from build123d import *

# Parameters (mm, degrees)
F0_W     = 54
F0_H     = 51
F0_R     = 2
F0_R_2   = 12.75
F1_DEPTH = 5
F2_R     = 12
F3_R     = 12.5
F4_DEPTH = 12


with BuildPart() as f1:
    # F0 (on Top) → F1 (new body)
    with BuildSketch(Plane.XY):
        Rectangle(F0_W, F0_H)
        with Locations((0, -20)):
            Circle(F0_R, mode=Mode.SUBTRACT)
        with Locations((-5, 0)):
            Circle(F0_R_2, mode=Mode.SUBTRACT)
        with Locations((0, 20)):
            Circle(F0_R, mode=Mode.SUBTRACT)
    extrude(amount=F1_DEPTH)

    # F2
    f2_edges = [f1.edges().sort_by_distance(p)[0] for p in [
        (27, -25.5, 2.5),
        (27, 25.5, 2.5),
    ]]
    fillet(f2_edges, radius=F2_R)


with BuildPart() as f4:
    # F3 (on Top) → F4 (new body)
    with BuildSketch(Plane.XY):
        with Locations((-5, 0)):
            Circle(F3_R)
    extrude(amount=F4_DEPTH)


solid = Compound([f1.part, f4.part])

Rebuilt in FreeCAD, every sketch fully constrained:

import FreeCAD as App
import Part
import Sketcher
from FreeCAD import Vector


def edges_at(feature, points):
    """Names of the edges that pass closest to the given points."""
    edges = feature.Shape.Edges
    near = lambda p: min(range(len(edges)), key=lambda i: edges[i].distToShape(Part.Vertex(*p))[0])
    return sorted({f"Edge{near(p) + 1}" for p in points})

doc = App.newDocument("Part")
body = doc.addObject("PartDesign::Body", "Body")

# Sketch on XY plane
sketch1 = doc.addObject("Sketcher::SketchObject", "Sketch")
body.addObject(sketch1)
sketch1.AttachmentSupport = (doc.XY_Plane, [""])
sketch1.MapMode = "FlatFace"
sketch1.addGeometry([
    Part.LineSegment(Vector(-27, 25.5, 0), Vector(-27, -25.5, 0)),  # 0
    Part.LineSegment(Vector(-27, -25.5, 0), Vector(27, -25.5, 0)),  # 1
    Part.LineSegment(Vector(27, -25.5, 0), Vector(27, 25.5, 0)),  # 2
    Part.LineSegment(Vector(27, 25.5, 0), Vector(-27, 25.5, 0)),  # 3
    Part.Circle(Vector(0, -20, 0), Vector(0, 0, 1), 2),  # 4
    Part.Circle(Vector(-5, 0, 0), Vector(0, 0, 1), 12.8),  # 5
    Part.Circle(Vector(0, 20, 0), Vector(0, 0, 1), 2),  # 6
], False)
sketch1.addConstraint([
    Sketcher.Constraint("Coincident", 0, 2, 1, 1),
    Sketcher.Constraint("Coincident", 1, 2, 2, 1),
    Sketcher.Constraint("Coincident", 2, 2, 3, 1),
    Sketcher.Constraint("Coincident", 3, 2, 0, 1),
    Sketcher.Constraint("Vertical", 0),
    Sketcher.Constraint("Horizontal", 1),
    Sketcher.Constraint("Vertical", 2),
    Sketcher.Constraint("Horizontal", 3),
    Sketcher.Constraint("Equal", 4, 6),
    Sketcher.Constraint("Symmetric", 4, 3, 6, 3, -1, 1),
    Sketcher.Constraint("Symmetric", 0, 2, 2, 2, -1, 1),
    Sketcher.Constraint("PointOnObject", 4, 3, -2),
    Sketcher.Constraint("PointOnObject", 5, 3, -1),
    Sketcher.Constraint("Diameter", 4, 4.0),
    Sketcher.Constraint("Diameter", 5, 25.5),
    Sketcher.Constraint("DistanceX", 1, 1, 1, 2, 54.0),
    Sketcher.Constraint("DistanceY", 0, 2, 0, 1, 51.0),
    Sketcher.Constraint("DistanceY", 4, 3, -1, 1, 20.0),
    Sketcher.Constraint("DistanceX", 5, 3, -1, 1, 5.0),
])
pad1 = doc.addObject("PartDesign::Pad", "Pad")
body.addObject(pad1)
pad1.Profile = sketch1
pad1.Length = 5
doc.recompute()

fillet = doc.addObject("PartDesign::Fillet", "Fillet")
body.addObject(fillet)
fillet.Base = (pad1, edges_at(pad1, [(27, -25.5, 2.5), (27, 25.5, 2.5)]))
fillet.Radius = 12
body2 = doc.addObject("PartDesign::Body", "Body001")

# Sketch on XY plane
sketch2 = doc.addObject("Sketcher::SketchObject", "Sketch001")
body2.addObject(sketch2)
sketch2.AttachmentSupport = (doc.getObject("XY_Plane001"), [""])
sketch2.MapMode = "FlatFace"
sketch2.addGeometry(Part.Circle(Vector(-5, 0, 0), Vector(0, 0, 1), 12), False)
sketch2.addConstraint([
    Sketcher.Constraint("PointOnObject", 0, 3, -1),
    Sketcher.Constraint("Diameter", 0, 25.0),
    Sketcher.Constraint("DistanceX", 0, 3, -1, 1, 5.0),
])
pad2 = doc.addObject("PartDesign::Pad", "Pad001")
body2.addObject(pad2)
pad2.Profile = sketch2
pad2.Length = 12

doc.recompute()
